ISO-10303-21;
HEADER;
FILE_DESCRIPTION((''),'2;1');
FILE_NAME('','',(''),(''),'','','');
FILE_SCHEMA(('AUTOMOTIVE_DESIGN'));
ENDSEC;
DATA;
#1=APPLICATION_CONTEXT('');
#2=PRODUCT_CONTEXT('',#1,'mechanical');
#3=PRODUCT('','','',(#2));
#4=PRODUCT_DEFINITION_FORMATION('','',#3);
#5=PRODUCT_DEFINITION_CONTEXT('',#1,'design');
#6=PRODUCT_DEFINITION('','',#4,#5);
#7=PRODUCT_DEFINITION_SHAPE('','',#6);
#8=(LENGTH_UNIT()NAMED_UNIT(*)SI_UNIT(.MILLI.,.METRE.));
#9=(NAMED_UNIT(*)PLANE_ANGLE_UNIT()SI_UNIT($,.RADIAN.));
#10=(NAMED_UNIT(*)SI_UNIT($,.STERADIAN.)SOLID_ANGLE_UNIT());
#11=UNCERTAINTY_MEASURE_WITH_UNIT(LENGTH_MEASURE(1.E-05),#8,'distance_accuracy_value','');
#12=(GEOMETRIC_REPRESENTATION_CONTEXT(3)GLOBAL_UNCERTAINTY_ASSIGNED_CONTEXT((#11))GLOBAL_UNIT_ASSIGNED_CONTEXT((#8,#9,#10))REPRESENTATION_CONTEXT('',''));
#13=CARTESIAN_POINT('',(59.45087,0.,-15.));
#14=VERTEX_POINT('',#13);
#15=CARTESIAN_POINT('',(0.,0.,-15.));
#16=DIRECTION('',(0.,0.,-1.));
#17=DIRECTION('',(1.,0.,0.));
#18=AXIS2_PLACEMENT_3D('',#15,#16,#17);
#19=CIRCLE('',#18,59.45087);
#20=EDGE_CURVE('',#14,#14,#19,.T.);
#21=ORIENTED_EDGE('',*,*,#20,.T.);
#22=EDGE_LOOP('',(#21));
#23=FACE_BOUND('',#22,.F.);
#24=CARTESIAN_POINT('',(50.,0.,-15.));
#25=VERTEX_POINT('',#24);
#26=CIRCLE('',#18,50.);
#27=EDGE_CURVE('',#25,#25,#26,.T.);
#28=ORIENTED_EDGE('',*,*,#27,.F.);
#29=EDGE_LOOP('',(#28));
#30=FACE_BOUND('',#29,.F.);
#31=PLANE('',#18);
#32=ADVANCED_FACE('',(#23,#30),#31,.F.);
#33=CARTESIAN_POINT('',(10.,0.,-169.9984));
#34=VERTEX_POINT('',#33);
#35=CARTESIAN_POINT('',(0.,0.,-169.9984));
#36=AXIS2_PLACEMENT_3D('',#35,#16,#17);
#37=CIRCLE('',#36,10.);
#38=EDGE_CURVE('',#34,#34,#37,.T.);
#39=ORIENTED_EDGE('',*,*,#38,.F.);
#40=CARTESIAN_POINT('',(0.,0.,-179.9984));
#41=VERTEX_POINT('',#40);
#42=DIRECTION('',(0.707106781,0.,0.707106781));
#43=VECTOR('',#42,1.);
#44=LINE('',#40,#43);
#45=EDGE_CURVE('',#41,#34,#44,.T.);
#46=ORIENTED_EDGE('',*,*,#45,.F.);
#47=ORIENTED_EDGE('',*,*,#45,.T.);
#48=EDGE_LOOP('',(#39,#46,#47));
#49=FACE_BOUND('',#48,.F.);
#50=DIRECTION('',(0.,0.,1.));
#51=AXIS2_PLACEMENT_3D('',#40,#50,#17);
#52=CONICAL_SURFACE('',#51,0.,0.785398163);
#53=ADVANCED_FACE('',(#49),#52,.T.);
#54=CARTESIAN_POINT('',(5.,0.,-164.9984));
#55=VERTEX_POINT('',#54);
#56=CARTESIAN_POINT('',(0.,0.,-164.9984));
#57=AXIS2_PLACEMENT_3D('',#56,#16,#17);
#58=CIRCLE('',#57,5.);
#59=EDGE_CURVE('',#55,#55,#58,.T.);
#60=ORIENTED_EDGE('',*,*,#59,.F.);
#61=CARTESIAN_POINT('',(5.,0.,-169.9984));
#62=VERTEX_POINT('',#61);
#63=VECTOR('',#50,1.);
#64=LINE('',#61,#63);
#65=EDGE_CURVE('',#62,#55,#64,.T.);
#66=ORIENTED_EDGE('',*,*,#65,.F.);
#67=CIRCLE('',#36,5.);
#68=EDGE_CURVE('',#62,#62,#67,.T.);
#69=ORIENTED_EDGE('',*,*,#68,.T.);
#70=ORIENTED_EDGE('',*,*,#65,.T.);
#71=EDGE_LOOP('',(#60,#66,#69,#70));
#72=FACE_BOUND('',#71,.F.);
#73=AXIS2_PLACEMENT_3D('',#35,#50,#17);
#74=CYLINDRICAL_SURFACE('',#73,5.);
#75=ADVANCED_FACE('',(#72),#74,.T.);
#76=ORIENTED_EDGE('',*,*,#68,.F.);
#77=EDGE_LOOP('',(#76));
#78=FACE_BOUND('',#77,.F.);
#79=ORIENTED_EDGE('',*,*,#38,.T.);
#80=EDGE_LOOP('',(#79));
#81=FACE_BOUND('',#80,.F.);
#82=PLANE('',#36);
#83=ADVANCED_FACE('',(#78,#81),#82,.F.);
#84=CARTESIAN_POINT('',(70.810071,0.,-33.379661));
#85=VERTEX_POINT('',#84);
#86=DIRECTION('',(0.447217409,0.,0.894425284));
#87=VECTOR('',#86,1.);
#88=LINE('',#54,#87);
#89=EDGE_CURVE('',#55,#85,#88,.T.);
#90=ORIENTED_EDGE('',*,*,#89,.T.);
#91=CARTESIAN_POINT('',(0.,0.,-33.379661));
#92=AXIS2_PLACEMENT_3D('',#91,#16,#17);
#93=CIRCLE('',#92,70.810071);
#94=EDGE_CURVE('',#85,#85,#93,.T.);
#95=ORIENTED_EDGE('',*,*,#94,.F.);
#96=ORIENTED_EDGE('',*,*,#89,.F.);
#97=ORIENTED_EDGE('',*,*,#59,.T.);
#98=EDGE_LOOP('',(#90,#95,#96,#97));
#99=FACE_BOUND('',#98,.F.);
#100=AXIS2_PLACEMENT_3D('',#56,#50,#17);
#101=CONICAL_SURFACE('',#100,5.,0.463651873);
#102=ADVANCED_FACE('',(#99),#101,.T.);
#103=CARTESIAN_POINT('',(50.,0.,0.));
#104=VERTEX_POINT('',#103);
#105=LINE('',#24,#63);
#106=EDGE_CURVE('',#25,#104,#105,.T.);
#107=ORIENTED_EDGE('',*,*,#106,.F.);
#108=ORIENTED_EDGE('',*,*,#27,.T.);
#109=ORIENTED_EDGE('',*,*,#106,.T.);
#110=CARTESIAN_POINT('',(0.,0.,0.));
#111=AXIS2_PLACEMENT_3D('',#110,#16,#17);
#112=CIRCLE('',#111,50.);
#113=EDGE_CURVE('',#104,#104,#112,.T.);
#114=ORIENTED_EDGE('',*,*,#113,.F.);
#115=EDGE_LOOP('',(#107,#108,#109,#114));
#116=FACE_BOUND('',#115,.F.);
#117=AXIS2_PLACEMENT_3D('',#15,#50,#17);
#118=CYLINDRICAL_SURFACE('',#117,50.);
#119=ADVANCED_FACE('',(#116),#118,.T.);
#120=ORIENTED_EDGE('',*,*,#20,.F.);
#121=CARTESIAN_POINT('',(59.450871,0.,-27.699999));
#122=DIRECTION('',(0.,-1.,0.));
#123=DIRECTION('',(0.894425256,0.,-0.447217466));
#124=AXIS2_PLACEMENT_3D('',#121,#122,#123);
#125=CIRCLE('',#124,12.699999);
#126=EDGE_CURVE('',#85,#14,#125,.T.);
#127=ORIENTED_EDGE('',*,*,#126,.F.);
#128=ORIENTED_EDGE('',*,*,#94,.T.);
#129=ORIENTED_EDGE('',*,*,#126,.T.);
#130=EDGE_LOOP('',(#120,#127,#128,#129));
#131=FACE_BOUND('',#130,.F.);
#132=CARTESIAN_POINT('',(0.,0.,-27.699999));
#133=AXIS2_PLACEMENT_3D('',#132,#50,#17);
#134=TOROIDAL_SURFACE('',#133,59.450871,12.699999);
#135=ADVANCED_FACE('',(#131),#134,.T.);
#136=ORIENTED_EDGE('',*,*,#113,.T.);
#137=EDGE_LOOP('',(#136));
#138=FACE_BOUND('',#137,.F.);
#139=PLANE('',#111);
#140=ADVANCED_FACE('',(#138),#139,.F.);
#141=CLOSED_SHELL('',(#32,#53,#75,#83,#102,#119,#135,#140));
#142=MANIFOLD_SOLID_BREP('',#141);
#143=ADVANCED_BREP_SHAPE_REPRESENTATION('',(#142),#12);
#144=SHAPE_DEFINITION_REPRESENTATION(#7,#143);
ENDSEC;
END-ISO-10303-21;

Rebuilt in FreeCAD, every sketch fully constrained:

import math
import FreeCAD as App
import Part
import Sketcher
Q = App.Units.Quantity

doc = App.newDocument("Part")
body = doc.addObject("PartDesign::Body", "Body")

# Sketch on XZ plane
sketch1 = body.newObject("Sketcher::SketchObject", "Sketch")
sketch1.AttachmentSupport = (doc.getObject("XZ_Plane"), [""])
sketch1.MapMode = "FlatFace"
sketch1.addGeometry([
    Part.LineSegment(App.Vector(50, -15, 0), App.Vector(50, 0, 0)),  # 0
    Part.LineSegment(App.Vector(50, 0, 0), App.Vector(0, 0, 0)),  # 1
    Part.LineSegment(App.Vector(0, 0, 0), App.Vector(0, -180, 0)),  # 2
    Part.LineSegment(App.Vector(0, -180, 0), App.Vector(10, -170, 0)),  # 3
    Part.LineSegment(App.Vector(10, -170, 0), App.Vector(5, -170, 0)),  # 4
    Part.LineSegment(App.Vector(5, -170, 0), App.Vector(5, -165, 0)),  # 5
    Part.LineSegment(App.Vector(5, -165, 0), App.Vector(71, -33, 0)),  # 6
    Part.ArcOfCircle(Part.Circle(App.Vector(59, -28, 0), App.Vector(0, 0, 1), 13), math.radians(-27), math.radians(90)),  # 7
    Part.LineSegment(App.Vector(59, -15, 0), App.Vector(50, -15, 0)),  # 8
], False)
sketch1.addConstraint([
    Sketcher.Constraint("Coincident", 0, 2, 1, 1),
    Sketcher.Constraint("Coincident", 1, 2, 2, 1),
    Sketcher.Constraint("Coincident", 2, 2, 3, 1),
    Sketcher.Constraint("Coincident", 3, 2, 4, 1),
    Sketcher.Constraint("Coincident", 4, 2, 5, 1),
    Sketcher.Constraint("Coincident", 5, 2, 6, 1),
    Sketcher.Constraint("Tangent", 6, 2, 7, 1),
    Sketcher.Constraint("Tangent", 7, 2, 8, 1),
    Sketcher.Constraint("Coincident", 8, 2, 0, 1),
    Sketcher.Constraint("Vertical", 0),
    Sketcher.Constraint("Horizontal", 1),
    Sketcher.Constraint("Vertical", 2),
    Sketcher.Constraint("Horizontal", 4),
    Sketcher.Constraint("Vertical", 5),
    Sketcher.Constraint("Horizontal", 8),
    Sketcher.Constraint("Coincident", 1, 2, -1, 1),
    Sketcher.Constraint("Equal", 4, 5),
    Sketcher.Constraint("Radius", 7, 12.699999),
    Sketcher.Constraint("DistanceX", 1, 2, 1, 1, 50.0),
    Sketcher.Constraint("DistanceX", 4, 2, 4, 1, 5.0),
    Sketcher.Constraint("DistanceY", 0, 1, 0, 2, 15.0),
    Sketcher.Constraint("Angle", 3, Q("45 deg")),
    Sketcher.Constraint("DistanceX", -1, 1, 3, 2, 10.0),
    Sketcher.Constraint("DistanceY", 2, 2, 2, 1, 179.9984),
    Sketcher.Constraint("DistanceX", 8, 2, 8, 1, 9.45087),
])
revolution = body.newObject("PartDesign::Revolution", "Revolution")
revolution.Profile = sketch1
revolution.ReferenceAxis = (sketch1, ["V_Axis"])
revolution.Angle = 360

doc.recompute()
